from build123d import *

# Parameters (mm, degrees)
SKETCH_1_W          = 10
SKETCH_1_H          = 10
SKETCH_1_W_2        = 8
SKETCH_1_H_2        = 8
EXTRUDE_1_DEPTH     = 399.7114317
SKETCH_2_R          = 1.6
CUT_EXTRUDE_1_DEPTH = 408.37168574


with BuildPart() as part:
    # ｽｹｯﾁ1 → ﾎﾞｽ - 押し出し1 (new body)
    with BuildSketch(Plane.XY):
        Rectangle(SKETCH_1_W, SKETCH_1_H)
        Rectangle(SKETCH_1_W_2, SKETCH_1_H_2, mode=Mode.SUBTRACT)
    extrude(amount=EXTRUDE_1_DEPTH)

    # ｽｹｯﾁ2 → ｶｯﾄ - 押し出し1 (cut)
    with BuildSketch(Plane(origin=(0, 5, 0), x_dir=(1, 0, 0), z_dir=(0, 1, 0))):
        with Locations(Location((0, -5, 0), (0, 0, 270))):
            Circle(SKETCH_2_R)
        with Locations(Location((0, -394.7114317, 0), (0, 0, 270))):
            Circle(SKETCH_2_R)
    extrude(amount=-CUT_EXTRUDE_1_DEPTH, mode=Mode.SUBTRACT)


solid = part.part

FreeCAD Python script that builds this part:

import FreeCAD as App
import Part
import Sketcher
from FreeCAD import Vector
Q = App.Units.Quantity

doc = App.newDocument("Part")
body = doc.addObject("PartDesign::Body", "Body")

# Sketch on XY plane
sketch1 = body.newObject("Sketcher::SketchObject", "Sketch")
sketch1.AttachmentSupport = (doc.getObject("XY_Plane"), [""])
sketch1.MapMode = "FlatFace"
sketch1.addGeometry([
    Part.LineSegment(Vector(-5, 5, 0), Vector(-5, -5, 0)),  # 0
    Part.LineSegment(Vector(-5, -5, 0), Vector(5, -5, 0)),  # 1
    Part.LineSegment(Vector(5, -5, 0), Vector(5, 5, 0)),  # 2
    Part.LineSegment(Vector(5, 5, 0), Vector(-5, 5, 0)),  # 3
    Part.LineSegment(Vector(4, -4, 0), Vector(-4, -4, 0)),  # 4
    Part.LineSegment(Vector(-4, -4, 0), Vector(-4, 4, 0)),  # 5
    Part.LineSegment(Vector(-4, 4, 0), Vector(4, 4, 0)),  # 6
    Part.LineSegment(Vector(4, 4, 0), Vector(4, -4, 0)),  # 7
], False)
sketch1.addConstraint([
    Sketcher.Constraint("Coincident", 0, 2, 1, 1),
    Sketcher.Constraint("Coincident", 1, 2, 2, 1),
    Sketcher.Constraint("Coincident", 2, 2, 3, 1),
    Sketcher.Constraint("Coincident", 3, 2, 0, 1),
    Sketcher.Constraint("Coincident", 4, 2, 5, 1),
    Sketcher.Constraint("Coincident", 5, 2, 6, 1),
    Sketcher.Constraint("Coincident", 6, 2, 7, 1),
    Sketcher.Constraint("Coincident", 7, 2, 4, 1),
    Sketcher.Constraint("Vertical", 0),
    Sketcher.Constraint("Horizontal", 1),
    Sketcher.Constraint("Vertical", 2),
    Sketcher.Constraint("Horizontal", 3),
    Sketcher.Constraint("Horizontal", 4),
    Sketcher.Constraint("Vertical", 5),
    Sketcher.Constraint("Horizontal", 6),
    Sketcher.Constraint("Vertical", 7),
    Sketcher.Constraint("Symmetric", 0, 2, 2, 2, -1, 1),
    Sketcher.Constraint("Symmetric", 4, 2, 6, 2, -1, 1),
    Sketcher.Constraint("Equal", 3, 0),
    Sketcher.Constraint("Equal", 6, 5),
    Sketcher.Constraint("DistanceX", 1, 1, 1, 2, Q("10 mm")),
    Sketcher.Constraint("DistanceX", 4, 2, 4, 1, Q("8 mm")),
])
pad1 = body.newObject("PartDesign::Pad", "Pad")
pad1.Profile = sketch1
pad1.Length = 399.711432

# Sketch on XZ plane
sketch2 = body.newObject("Sketcher::SketchObject", "Sketch001")
sketch2.AttachmentSupport = (doc.getObject("XZ_Plane"), [""])
sketch2.MapMode = "FlatFace"
sketch2.AttachmentOffset = App.Placement(Vector(0, 0, -5), App.Rotation())
sketch2.addGeometry([
    Part.Circle(Vector(0, 5, 0), Vector(0, 0, 1), 1.6),
    Part.Circle(Vector(0, 394.7, 0), Vector(0, 0, 1), 1.6),
], False)
sketch2.addConstraint([
    Sketcher.Constraint("Equal", 0, 1),
    Sketcher.Constraint("PointOnObject", 0, 3, -2),
    Sketcher.Constraint("PointOnObject", 1, 3, -2),
    Sketcher.Constraint("Diameter", 0, Q("3.2 mm")),
    Sketcher.Constraint("DistanceY", -1, 1, 0, 3, Q("5 mm")),
    Sketcher.Constraint("DistanceY", -1, 1, 1, 3, Q("394.711432 mm")),
])
pocket1 = body.newObject("PartDesign::Pocket", "Pocket")
pocket1.Profile = sketch2
pocket1.Length = 408.371686
pocket1.Reversed = True

doc.recompute()
